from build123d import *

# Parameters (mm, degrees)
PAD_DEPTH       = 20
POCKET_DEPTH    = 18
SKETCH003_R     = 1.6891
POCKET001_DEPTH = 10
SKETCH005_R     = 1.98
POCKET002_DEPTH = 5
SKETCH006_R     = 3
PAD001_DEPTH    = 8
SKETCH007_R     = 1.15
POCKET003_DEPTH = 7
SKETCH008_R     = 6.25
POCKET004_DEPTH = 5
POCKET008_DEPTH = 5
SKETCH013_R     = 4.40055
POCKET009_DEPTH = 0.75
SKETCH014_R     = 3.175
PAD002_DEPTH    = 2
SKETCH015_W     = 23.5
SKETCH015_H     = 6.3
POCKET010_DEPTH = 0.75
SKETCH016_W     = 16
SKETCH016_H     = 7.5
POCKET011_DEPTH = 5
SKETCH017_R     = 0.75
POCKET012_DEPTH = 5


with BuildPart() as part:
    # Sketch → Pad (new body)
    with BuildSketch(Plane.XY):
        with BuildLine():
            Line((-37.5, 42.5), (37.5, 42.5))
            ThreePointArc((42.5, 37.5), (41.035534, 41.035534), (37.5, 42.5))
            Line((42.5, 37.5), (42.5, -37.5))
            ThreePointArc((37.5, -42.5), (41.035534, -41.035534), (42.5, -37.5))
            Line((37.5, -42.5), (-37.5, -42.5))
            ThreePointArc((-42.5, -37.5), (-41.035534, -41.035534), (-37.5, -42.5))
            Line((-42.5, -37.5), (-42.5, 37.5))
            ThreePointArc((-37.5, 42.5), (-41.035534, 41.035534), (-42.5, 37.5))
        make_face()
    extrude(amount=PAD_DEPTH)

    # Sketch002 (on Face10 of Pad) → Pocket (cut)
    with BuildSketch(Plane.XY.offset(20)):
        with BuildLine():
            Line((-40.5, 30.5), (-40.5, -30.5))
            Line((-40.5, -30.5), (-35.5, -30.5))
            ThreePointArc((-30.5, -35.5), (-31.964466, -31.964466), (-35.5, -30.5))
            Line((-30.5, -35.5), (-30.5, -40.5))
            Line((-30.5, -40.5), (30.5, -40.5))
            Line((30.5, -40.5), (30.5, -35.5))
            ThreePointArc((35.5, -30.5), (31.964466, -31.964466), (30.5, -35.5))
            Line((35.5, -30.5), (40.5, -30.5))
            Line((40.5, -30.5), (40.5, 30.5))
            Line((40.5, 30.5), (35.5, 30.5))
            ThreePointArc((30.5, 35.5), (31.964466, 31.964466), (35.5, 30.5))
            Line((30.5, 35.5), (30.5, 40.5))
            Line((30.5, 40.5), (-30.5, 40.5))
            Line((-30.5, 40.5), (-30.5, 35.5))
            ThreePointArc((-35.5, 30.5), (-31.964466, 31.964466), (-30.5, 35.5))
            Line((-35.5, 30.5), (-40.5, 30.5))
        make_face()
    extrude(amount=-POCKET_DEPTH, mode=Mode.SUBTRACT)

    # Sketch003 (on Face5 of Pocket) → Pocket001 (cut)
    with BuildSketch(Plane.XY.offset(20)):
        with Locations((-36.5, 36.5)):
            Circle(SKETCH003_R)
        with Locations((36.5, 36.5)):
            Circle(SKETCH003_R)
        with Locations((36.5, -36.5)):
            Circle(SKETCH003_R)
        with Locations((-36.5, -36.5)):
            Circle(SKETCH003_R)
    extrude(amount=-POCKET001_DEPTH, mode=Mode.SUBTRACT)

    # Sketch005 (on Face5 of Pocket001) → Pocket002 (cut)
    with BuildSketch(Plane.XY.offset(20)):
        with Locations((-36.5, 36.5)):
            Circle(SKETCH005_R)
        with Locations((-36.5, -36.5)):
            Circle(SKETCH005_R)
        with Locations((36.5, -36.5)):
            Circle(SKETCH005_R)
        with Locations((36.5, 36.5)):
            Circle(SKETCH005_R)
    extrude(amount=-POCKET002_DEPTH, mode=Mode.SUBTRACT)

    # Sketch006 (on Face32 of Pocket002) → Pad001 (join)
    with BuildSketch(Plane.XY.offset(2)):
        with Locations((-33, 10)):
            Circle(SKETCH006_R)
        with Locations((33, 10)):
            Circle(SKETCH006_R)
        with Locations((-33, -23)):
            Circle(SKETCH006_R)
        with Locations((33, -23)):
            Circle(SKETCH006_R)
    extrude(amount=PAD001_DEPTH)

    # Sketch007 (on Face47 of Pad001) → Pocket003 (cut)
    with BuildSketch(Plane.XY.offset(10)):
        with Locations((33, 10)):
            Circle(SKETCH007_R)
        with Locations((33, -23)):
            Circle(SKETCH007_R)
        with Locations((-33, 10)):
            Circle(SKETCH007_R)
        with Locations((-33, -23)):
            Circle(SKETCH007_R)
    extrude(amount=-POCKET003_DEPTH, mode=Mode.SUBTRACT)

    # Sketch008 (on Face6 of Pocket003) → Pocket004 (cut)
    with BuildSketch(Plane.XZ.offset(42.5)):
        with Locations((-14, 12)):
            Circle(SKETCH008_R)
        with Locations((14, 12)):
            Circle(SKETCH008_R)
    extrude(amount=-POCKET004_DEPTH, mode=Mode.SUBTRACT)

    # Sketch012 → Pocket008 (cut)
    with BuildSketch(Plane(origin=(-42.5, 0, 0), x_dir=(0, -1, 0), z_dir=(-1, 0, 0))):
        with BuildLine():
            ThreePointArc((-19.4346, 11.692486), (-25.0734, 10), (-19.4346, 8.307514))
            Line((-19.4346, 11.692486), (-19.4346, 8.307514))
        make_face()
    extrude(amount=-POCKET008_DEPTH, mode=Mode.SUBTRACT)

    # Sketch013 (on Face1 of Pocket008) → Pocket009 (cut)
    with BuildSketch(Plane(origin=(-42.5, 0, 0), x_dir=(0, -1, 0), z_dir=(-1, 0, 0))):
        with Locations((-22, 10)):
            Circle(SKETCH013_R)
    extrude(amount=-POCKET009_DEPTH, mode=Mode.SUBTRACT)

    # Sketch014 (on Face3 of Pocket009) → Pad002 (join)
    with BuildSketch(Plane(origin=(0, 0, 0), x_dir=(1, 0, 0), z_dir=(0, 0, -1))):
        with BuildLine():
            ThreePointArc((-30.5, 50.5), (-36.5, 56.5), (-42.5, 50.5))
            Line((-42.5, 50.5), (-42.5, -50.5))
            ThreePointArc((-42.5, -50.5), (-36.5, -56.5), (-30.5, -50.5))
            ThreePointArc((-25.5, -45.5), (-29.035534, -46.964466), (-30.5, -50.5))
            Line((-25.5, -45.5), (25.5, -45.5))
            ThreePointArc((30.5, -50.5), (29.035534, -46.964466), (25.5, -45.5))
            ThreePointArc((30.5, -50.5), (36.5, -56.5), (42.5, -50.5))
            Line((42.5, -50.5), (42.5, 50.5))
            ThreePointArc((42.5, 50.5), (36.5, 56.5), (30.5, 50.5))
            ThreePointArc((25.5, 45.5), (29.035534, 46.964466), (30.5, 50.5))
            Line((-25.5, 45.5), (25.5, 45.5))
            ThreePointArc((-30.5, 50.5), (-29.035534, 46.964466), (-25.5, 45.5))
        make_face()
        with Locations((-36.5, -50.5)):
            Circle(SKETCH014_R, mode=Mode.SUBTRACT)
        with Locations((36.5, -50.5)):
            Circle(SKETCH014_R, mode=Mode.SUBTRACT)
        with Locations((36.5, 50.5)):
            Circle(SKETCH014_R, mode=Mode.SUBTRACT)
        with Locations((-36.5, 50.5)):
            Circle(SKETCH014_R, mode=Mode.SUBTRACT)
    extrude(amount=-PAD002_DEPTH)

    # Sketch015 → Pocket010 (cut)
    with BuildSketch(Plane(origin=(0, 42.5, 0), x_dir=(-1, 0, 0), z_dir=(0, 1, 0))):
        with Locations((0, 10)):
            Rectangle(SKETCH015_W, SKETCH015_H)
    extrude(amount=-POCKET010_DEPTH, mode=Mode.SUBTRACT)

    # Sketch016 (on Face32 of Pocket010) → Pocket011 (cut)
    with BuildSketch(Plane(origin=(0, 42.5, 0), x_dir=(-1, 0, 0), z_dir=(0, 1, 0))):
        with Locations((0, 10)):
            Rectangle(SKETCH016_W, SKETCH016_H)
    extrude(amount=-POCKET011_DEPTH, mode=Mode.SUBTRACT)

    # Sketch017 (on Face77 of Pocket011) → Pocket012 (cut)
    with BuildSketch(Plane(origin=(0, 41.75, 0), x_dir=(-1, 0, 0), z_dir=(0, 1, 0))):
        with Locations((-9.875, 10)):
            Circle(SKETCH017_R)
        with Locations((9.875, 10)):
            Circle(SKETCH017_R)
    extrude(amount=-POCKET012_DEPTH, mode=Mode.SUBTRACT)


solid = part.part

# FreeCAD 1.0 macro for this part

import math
import FreeCAD as App
import Part
import Sketcher
from FreeCAD import Vector
Q = App.Units.Quantity


def add_polygon(sketch, points):
    """Adds a closed chain of lines whose ends are joined by coincident constraints."""
    first, n = sketch.GeometryCount, len(points)
    for a, b in zip(points, points[1:] + points[:1]):
        sketch.addGeometry(Part.LineSegment(App.Vector(*a, 0), App.Vector(*b, 0)), False)
    for i in range(n):
        sketch.addConstraint(Sketcher.Constraint("Coincident", first + i, 2, first + (i + 1) % n, 1))

doc = App.newDocument("Part")
body = doc.addObject("PartDesign::Body", "Body")

sketch1 = doc.addObject("Sketcher::SketchObject", "Sketch")
body.addObject(sketch1)
sketch1.AttachmentSupport = (doc.XY_Plane, [""])
sketch1.MapMode = "FlatFace"
sketch1.addGeometry(Part.LineSegment(Vector(37.5, 42.5, 0), Vector(-37.5, 42.5, 0)), False)
sketch1.addGeometry(Part.ArcOfCircle(Part.Circle(Vector(-37.5, 37.5, 0), Vector(0, 0, 1), 5), math.radians(90), math.radians(180)), False)
sketch1.addGeometry(Part.LineSegment(Vector(-42.5, 37.5, 0), Vector(-42.5, -37.5, 0)), False)
sketch1.addGeometry(Part.ArcOfCircle(Part.Circle(Vector(-37.5, -37.5, 0), Vector(0, 0, 1), 5), math.radians(180), math.radians(270)), False)
sketch1.addGeometry(Part.LineSegment(Vector(-37.5, -42.5, 0), Vector(37.5, -42.5, 0)), False)
sketch1.addGeometry(Part.ArcOfCircle(Part.Circle(Vector(37.5, -37.5, 0), Vector(0, 0, 1), 5), math.radians(-90), math.radians(0)), False)
sketch1.addGeometry(Part.LineSegment(Vector(42.5, -37.5, 0), Vector(42.5, 37.5, 0)), False)
sketch1.addGeometry(Part.ArcOfCircle(Part.Circle(Vector(37.5, 37.5, 0), Vector(0, 0, 1), 5), math.radians(0), math.radians(90)), False)
sketch1.addConstraint(Sketcher.Constraint("Tangent", 0, 2, 1, 1))
sketch1.addConstraint(Sketcher.Constraint("Tangent", 1, 2, 2, 1))
sketch1.addConstraint(Sketcher.Constraint("Tangent", 2, 2, 3, 1))
sketch1.addConstraint(Sketcher.Constraint("Tangent", 3, 2, 4, 1))
sketch1.addConstraint(Sketcher.Constraint("Tangent", 4, 2, 5, 1))
sketch1.addConstraint(Sketcher.Constraint("Tangent", 5, 2, 6, 1))
sketch1.addConstraint(Sketcher.Constraint("Tangent", 6, 2, 7, 1))
sketch1.addConstraint(Sketcher.Constraint("Tangent", 7, 2, 0, 1))
sketch1.addConstraint(Sketcher.Constraint("Horizontal", 0))
sketch1.addConstraint(Sketcher.Constraint("Vertical", 2))
sketch1.addConstraint(Sketcher.Constraint("Horizontal", 4))
sketch1.addConstraint(Sketcher.Constraint("Vertical", 6))
sketch1.addConstraint(Sketcher.Constraint("Equal", 1, 3))
sketch1.addConstraint(Sketcher.Constraint("Equal", 3, 5))
sketch1.addConstraint(Sketcher.Constraint("Equal", 5, 7))
sketch1.addConstraint(Sketcher.Constraint("Symmetric", 1, 3, 5, 3, -1, 1))
sketch1.addConstraint(Sketcher.Constraint("Equal", 4, 2))
sketch1.addConstraint(Sketcher.Constraint("Radius", 1, Q("5 mm")))
sketch1.addConstraint(Sketcher.Constraint("DistanceX", 0, 2, 0, 1, Q("75 mm")))
pad1 = doc.addObject("PartDesign::Pad", "Pad")
body.addObject(pad1)
pad1.Profile = sketch1
pad1.Length = 20

sketch2 = doc.addObject("Sketcher::SketchObject", "Sketch001")
body.addObject(sketch2)
sketch2.AttachmentSupport = (doc.XY_Plane, [""])
sketch2.MapMode = "FlatFace"
sketch2.AttachmentOffset = App.Placement(Vector(0, 0, 20), App.Rotation())
sketch2.addGeometry(Part.LineSegment(Vector(-40.5, 30.5, 0), Vector(-40.5, -30.5, 0)), False)
sketch2.addGeometry(Part.LineSegment(Vector(-40.5, -30.5, 0), Vector(-35.5, -30.5, 0)), False)
sketch2.addGeometry(Part.ArcOfCircle(Part.Circle(Vector(-35.5, -35.5, 0), Vector(0, 0, 1), 5), math.radians(0), math.radians(90)), False)
sketch2.addGeometry(Part.LineSegment(Vector(-30.5, -35.5, 0), Vector(-30.5, -40.5, 0)), False)
sketch2.addGeometry(Part.LineSegment(Vector(-30.5, -40.5, 0), Vector(30.5, -40.5, 0)), False)
sketch2.addGeometry(Part.LineSegment(Vector(30.5, -40.5, 0), Vector(30.5, -35.5, 0)), False)
sketch2.addGeometry(Part.ArcOfCircle(Part.Circle(Vector(35.5, -35.5, 0), Vector(0, 0, 1), 5), math.radians(90), math.radians(180)), False)
sketch2.addGeometry(Part.LineSegment(Vector(35.5, -30.5, 0), Vector(40.5, -30.5, 0)), False)
sketch2.addGeometry(Part.LineSegment(Vector(40.5, -30.5, 0), Vector(40.5, 30.5, 0)), False)
sketch2.addGeometry(Part.LineSegment(Vector(40.5, 30.5, 0), Vector(35.5, 30.5, 0)), False)
sketch2.addGeometry(Part.ArcOfCircle(Part.Circle(Vector(35.5, 35.5, 0), Vector(0, 0, 1), 5), math.radians(180), math.radians(270)), False)
sketch2.addGeometry(Part.LineSegment(Vector(30.5, 35.5, 0), Vector(30.5, 40.5, 0)), False)
sketch2.addGeometry(Part.LineSegment(Vector(30.5, 40.5, 0), Vector(-30.5, 40.5, 0)), False)
sketch2.addGeometry(Part.LineSegment(Vector(-30.5, 40.5, 0), Vector(-30.5, 35.5, 0)), False)
sketch2.addGeometry(Part.ArcOfCircle(Part.Circle(Vector(-35.5, 35.5, 0), Vector(0, 0, 1), 5), math.radians(-90), math.radians(0)), False)
sketch2.addGeometry(Part.LineSegment(Vector(-35.5, 30.5, 0), Vector(-40.5, 30.5, 0)), False)
sketch2.addConstraint(Sketcher.Constraint("Coincident", 0, 2, 1, 1))
sketch2.addConstraint(Sketcher.Constraint("Tangent", 1, 2, 2, 2))
sketch2.addConstraint(Sketcher.Constraint("Tangent", 2, 1, 3, 1))
sketch2.addConstraint(Sketcher.Constraint("Coincident", 3, 2, 4, 1))
sketch2.addConstraint(Sketcher.Constraint("Coincident", 4, 2, 5, 1))
sketch2.addConstraint(Sketcher.Constraint("Tangent", 5, 2, 6, 2))
sketch2.addConstraint(Sketcher.Constraint("Tangent", 6, 1, 7, 1))
sketch2.addConstraint(Sketcher.Constraint("Coincident", 7, 2, 8, 1))
sketch2.addConstraint(Sketcher.Constraint("Coincident", 8, 2, 9, 1))
sketch2.addConstraint(Sketcher.Constraint("Tangent", 9, 2, 10, 2))
sketch2.addConstraint(Sketcher.Constraint("Tangent", 10, 1, 11, 1))
sketch2.addConstraint(Sketcher.Constraint("Coincident", 11, 2, 12, 1))
sketch2.addConstraint(Sketcher.Constraint("Coincident", 12, 2, 13, 1))
sketch2.addConstraint(Sketcher.Constraint("Tangent", 13, 2, 14, 2))
sketch2.addConstraint(Sketcher.Constraint("Tangent", 14, 1, 15, 1))
sketch2.addConstraint(Sketcher.Constraint("Coincident", 15, 2, 0, 1))
sketch2.addConstraint(Sketcher.Constraint("Vertical", 0))
sketch2.addConstraint(Sketcher.Constraint("Horizontal", 1))
sketch2.addConstraint(Sketcher.Constraint("Vertical", 3))
sketch2.addConstraint(Sketcher.Constraint("Horizontal", 4))
sketch2.addConstraint(Sketcher.Constraint("Vertical", 5))
sketch2.addConstraint(Sketcher.Constraint("Horizontal", 7))
sketch2.addConstraint(Sketcher.Constraint("Vertical", 8))
sketch2.addConstraint(Sketcher.Constraint("Horizontal", 9))
sketch2.addConstraint(Sketcher.Constraint("Vertical", 11))
sketch2.addConstraint(Sketcher.Constraint("Horizontal", 12))
sketch2.addConstraint(Sketcher.Constraint("Vertical", 13))
sketch2.addConstraint(Sketcher.Constraint("Horizontal", 15))
sketch2.addConstraint(Sketcher.Constraint("Equal", 2, 6))
sketch2.addConstraint(Sketcher.Constraint("Equal", 6, 10))
sketch2.addConstraint(Sketcher.Constraint("Equal", 10, 14))
sketch2.addConstraint(Sketcher.Constraint("Symmetric", 2, 3, 10, 3, -1, 1))
sketch2.addConstraint(Sketcher.Constraint("Symmetric", 6, 3, 14, 3, -1, 1))
sketch2.addConstraint(Sketcher.Constraint("Symmetric", 2, 3, 6, 3, -2))
sketch2.addConstraint(Sketcher.Constraint("Equal", 1, 7))
sketch2.addConstraint(Sketcher.Constraint("Equal", 12, 0))
sketch2.addConstraint(Sketcher.Constraint("Equal", 15, 3))
sketch2.addConstraint(Sketcher.Constraint("Equal", 5, 11))
sketch2.addConstraint(Sketcher.Constraint("Radius", 2, Q("5 mm")))
sketch2.addConstraint(Sketcher.Constraint("DistanceX", 1, 1, 1, 2, Q("5 mm")))
sketch2.addConstraint(Sketcher.Constraint("DistanceX", 4, 1, 4, 2, Q("61 mm")))
pocket1 = doc.addObject("PartDesign::Pocket", "Pocket")
body.addObject(pocket1)
pocket1.Profile = sketch2
pocket1.Length = 18

sketch3 = doc.addObject("Sketcher::SketchObject", "Sketch002")
body.addObject(sketch3)
sketch3.AttachmentSupport = (doc.XY_Plane, [""])
sketch3.MapMode = "FlatFace"
sketch3.AttachmentOffset = App.Placement(Vector(0, 0, 20), App.Rotation())
sketch3.addGeometry(Part.Circle(Vector(-36.5, 36.5, 0), Vector(0, 0, 1), 1.7), False)
sketch3.addGeometry(Part.Circle(Vector(36.5, 36.5, 0), Vector(0, 0, 1), 1.7), False)
sketch3.addGeometry(Part.Circle(Vector(36.5, -36.5, 0), Vector(0, 0, 1), 1.7), False)
sketch3.addGeometry(Part.Circle(Vector(-36.5, -36.5, 0), Vector(0, 0, 1), 1.7), False)
sketch3.addConstraint(Sketcher.Constraint("Equal", 0, 1))
sketch3.addConstraint(Sketcher.Constraint("Equal", 1, 2))
sketch3.addConstraint(Sketcher.Constraint("Equal", 2, 3))
sketch3.addConstraint(Sketcher.Constraint("Symmetric", 0, 3, 2, 3, -1, 1))
sketch3.addConstraint(Sketcher.Constraint("Symmetric", 1, 3, 3, 3, -1, 1))
sketch3.addConstraint(Sketcher.Constraint("Symmetric", 0, 3, 1, 3, -2))
sketch3.addConstraint(Sketcher.Constraint("DistanceX", 0, 3, 1, 3, Q("73 mm")))
sketch3.addConstraint(Sketcher.Constraint("DistanceY", 2, 3, 1, 3, Q("73 mm")))
sketch3.addConstraint(Sketcher.Constraint("Diameter", 0, Q("3.3782 mm")))
pocket2 = doc.addObject("PartDesign::Pocket", "Pocket001")
body.addObject(pocket2)
pocket2.Profile = sketch3
pocket2.Length = 10

sketch4 = doc.addObject("Sketcher::SketchObject", "Sketch003")
body.addObject(sketch4)
sketch4.AttachmentSupport = (doc.XY_Plane, [""])
sketch4.MapMode = "FlatFace"
sketch4.AttachmentOffset = App.Placement(Vector(0, 0, 20), App.Rotation())
sketch4.addGeometry(Part.Circle(Vector(-36.5, 36.5, 0), Vector(0, 0, 1), 2), False)
sketch4.addGeometry(Part.Circle(Vector(-36.5, -36.5, 0), Vector(0, 0, 1), 2), False)
sketch4.addGeometry(Part.Circle(Vector(36.5, -36.5, 0), Vector(0, 0, 1), 2), False)
sketch4.addGeometry(Part.Circle(Vector(36.5, 36.5, 0), Vector(0, 0, 1), 2), False)
sketch4.addConstraint(Sketcher.Constraint("Equal", 0, 1))
sketch4.addConstraint(Sketcher.Constraint("Equal", 1, 2))
sketch4.addConstraint(Sketcher.Constraint("Equal", 2, 3))
sketch4.addConstraint(Sketcher.Constraint("Symmetric", 0, 3, 2, 3, -1, 1))
sketch4.addConstraint(Sketcher.Constraint("Symmetric", 1, 3, 3, 3, -1, 1))
sketch4.addConstraint(Sketcher.Constraint("Symmetric", 1, 3, 2, 3, -2))
sketch4.addConstraint(Sketcher.Constraint("Diameter", 0, Q("3.96 mm")))
sketch4.addConstraint(Sketcher.Constraint("DistanceY", 1, 3, 0, 3, Q("73 mm")))
sketch4.addConstraint(Sketcher.Constraint("DistanceX", 1, 3, 2, 3, Q("73 mm")))
pocket3 = doc.addObject("PartDesign::Pocket", "Pocket002")
body.addObject(pocket3)
pocket3.Profile = sketch4
pocket3.Length = 5

sketch5 = doc.addObject("Sketcher::SketchObject", "Sketch004")
body.addObject(sketch5)
sketch5.AttachmentSupport = (doc.XY_Plane, [""])
sketch5.MapMode = "FlatFace"
sketch5.AttachmentOffset = App.Placement(Vector(0, 0, 2), App.Rotation())
sketch5.addGeometry(Part.Circle(Vector(-33, 10, 0), Vector(0, 0, 1), 3), False)
sketch5.addGeometry(Part.Circle(Vector(33, 10, 0), Vector(0, 0, 1), 3), False)
sketch5.addGeometry(Part.Circle(Vector(-33, -23, 0), Vector(0, 0, 1), 3), False)
sketch5.addGeometry(Part.Circle(Vector(33, -23, 0), Vector(0, 0, 1), 3), False)
sketch5.addConstraint(Sketcher.Constraint("Equal", 0, 1))
sketch5.addConstraint(Sketcher.Constraint("Equal", 1, 2))
sketch5.addConstraint(Sketcher.Constraint("Equal", 2, 3))
sketch5.addConstraint(Sketcher.Constraint("Symmetric", 0, 3, 1, 3, -2))
sketch5.addConstraint(Sketcher.Constraint("Symmetric", 2, 3, 3, 3, -2))
sketch5.addConstraint(Sketcher.Constraint("Vertical", 0, 3, 2, 3))
sketch5.addConstraint(Sketcher.Constraint("Diameter", 0, Q("6 mm")))
sketch5.addConstraint(Sketcher.Constraint("DistanceX", 0, 3, -1, 1, Q("33 mm")))
sketch5.addConstraint(Sketcher.Constraint("DistanceY", -1, 1, 0, 3, Q("10 mm")))
sketch5.addConstraint(Sketcher.Constraint("DistanceY", 2, 3, -1, 1, Q("23 mm")))
pad2 = doc.addObject("PartDesign::Pad", "Pad001")
body.addObject(pad2)
pad2.Profile = sketch5
pad2.Length = 8

sketch6 = doc.addObject("Sketcher::SketchObject", "Sketch005")
body.addObject(sketch6)
sketch6.AttachmentSupport = (doc.XY_Plane, [""])
sketch6.MapMode = "FlatFace"
sketch6.AttachmentOffset = App.Placement(Vector(0, 0, 10), App.Rotation())
sketch6.addGeometry(Part.Circle(Vector(33, 10, 0), Vector(0, 0, 1), 1.1), False)
sketch6.addGeometry(Part.Circle(Vector(33, -23, 0), Vector(0, 0, 1), 1.1), False)
sketch6.addGeometry(Part.Circle(Vector(-33, 10, 0), Vector(0, 0, 1), 1.1), False)
sketch6.addGeometry(Part.Circle(Vector(-33, -23, 0), Vector(0, 0, 1), 1.1), False)
sketch6.addConstraint(Sketcher.Constraint("Equal", 0, 1))
sketch6.addConstraint(Sketcher.Constraint("Equal", 1, 2))
sketch6.addConstraint(Sketcher.Constraint("Equal", 2, 3))
sketch6.addConstraint(Sketcher.Constraint("Symmetric", 0, 3, 2, 3, -2))
sketch6.addConstraint(Sketcher.Constraint("Symmetric", 1, 3, 3, 3, -2))
sketch6.addConstraint(Sketcher.Constraint("Vertical", 0, 3, 1, 3))
sketch6.addConstraint(Sketcher.Constraint("Diameter", 0, Q("2.3 mm")))
sketch6.addConstraint(Sketcher.Constraint("DistanceX", -1, 1, 0, 3, Q("33 mm")))
sketch6.addConstraint(Sketcher.Constraint("DistanceY", -1, 1, 0, 3, Q("10 mm")))
sketch6.addConstraint(Sketcher.Constraint("DistanceY", 1, 3, -1, 1, Q("23 mm")))
pocket4 = doc.addObject("PartDesign::Pocket", "Pocket003")
body.addObject(pocket4)
pocket4.Profile = sketch6
pocket4.Length = 7

sketch7 = doc.addObject("Sketcher::SketchObject", "Sketch006")
body.addObject(sketch7)
sketch7.AttachmentSupport = (doc.XZ_Plane, [""])
sketch7.MapMode = "FlatFace"
sketch7.AttachmentOffset = App.Placement(Vector(0, 0, 42.5), App.Rotation())
sketch7.addGeometry(Part.Circle(Vector(-14, 12, 0), Vector(0, 0, 1), 6), False)
sketch7.addGeometry(Part.Circle(Vector(14, 12, 0), Vector(0, 0, 1), 6), False)
sketch7.addConstraint(Sketcher.Constraint("Equal", 0, 1))
sketch7.addConstraint(Sketcher.Constraint("Symmetric", 0, 3, 1, 3, -2))
sketch7.addConstraint(Sketcher.Constraint("Diameter", 0, Q("12.5 mm")))
sketch7.addConstraint(Sketcher.Constraint("DistanceX", 0, 3, -1, 1, Q("14 mm")))
sketch7.addConstraint(Sketcher.Constraint("DistanceY", -1, 1, 0, 3, Q("12 mm")))
pocket5 = doc.addObject("PartDesign::Pocket", "Pocket004")
body.addObject(pocket5)
pocket5.Profile = sketch7
pocket5.Length = 5

sketch8 = doc.addObject("Sketcher::SketchObject", "Sketch007")
body.addObject(sketch8)
sketch8.AttachmentSupport = (doc.YZ_Plane, [""])
sketch8.MapMode = "FlatFace"
sketch8.AttachmentOffset = App.Placement(Vector(0, 0, -42.5), App.Rotation())
sketch8.addGeometry(Part.ArcOfCircle(Part.Circle(Vector(22, 10, 0), Vector(0, 0, 1), 3.1), math.radians(-147), math.radians(147)), False)
sketch8.addGeometry(Part.LineSegment(Vector(19.4, 8.3, 0), Vector(19.4, 11.7, 0)), False)
sketch8.addConstraint(Sketcher.Constraint("Coincident", 0, 1, 1, 1))
sketch8.addConstraint(Sketcher.Constraint("Coincident", 1, 2, 0, 2))
sketch8.addConstraint(Sketcher.Constraint("Vertical", 1))
sketch8.addConstraint(Sketcher.Constraint("DistanceX", -1, 1, 0, 3, Q("22 mm")))
sketch8.addConstraint(Sketcher.Constraint("DistanceY", -1, 1, 0, 3, Q("10 mm")))
sketch8.addConstraint(Sketcher.Constraint("Radius", 0, Q("3.0734 mm")))
sketch8.addConstraint(Sketcher.Constraint("DistanceX", -1, 1, 0, 1, Q("19.4346 mm")))
pocket6 = doc.addObject("PartDesign::Pocket", "Pocket005")
body.addObject(pocket6)
pocket6.Profile = sketch8
pocket6.Length = 5
pocket6.Reversed = True

sketch9 = doc.addObject("Sketcher::SketchObject", "Sketch008")
body.addObject(sketch9)
sketch9.AttachmentSupport = (doc.YZ_Plane, [""])
sketch9.MapMode = "FlatFace"
sketch9.AttachmentOffset = App.Placement(Vector(0, 0, -42.5), App.Rotation())
sketch9.addGeometry(Part.Circle(Vector(22, 10, 0), Vector(0, 0, 1), 4.4), False)
sketch9.addConstraint(Sketcher.Constraint("DistanceX", -1, 1, 0, 3, Q("22 mm")))
sketch9.addConstraint(Sketcher.Constraint("DistanceY", -1, 1, 0, 3, Q("10 mm")))
sketch9.addConstraint(Sketcher.Constraint("Diameter", 0, Q("8.8011 mm")))
pocket7 = doc.addObject("PartDesign::Pocket", "Pocket006")
body.addObject(pocket7)
pocket7.Profile = sketch9
pocket7.Length = 0.75
pocket7.Reversed = True

sketch10 = doc.addObject("Sketcher::SketchObject", "Sketch009")
body.addObject(sketch10)
sketch10.AttachmentSupport = (doc.XY_Plane, [""])
sketch10.MapMode = "FlatFace"
sketch10.addGeometry(Part.ArcOfCircle(Part.Circle(Vector(-36.5, -50.5, 0), Vector(0, 0, 1), 6), math.radians(180), math.radians(360)), False)
sketch10.addGeometry(Part.LineSegment(Vector(-42.5, -50.5, 0), Vector(-42.5, 50.5, 0)), False)
sketch10.addGeometry(Part.ArcOfCircle(Part.Circle(Vector(-36.5, 50.5, 0), Vector(0, 0, 1), 6), math.radians(0), math.radians(180)), False)
sketch10.addGeometry(Part.ArcOfCircle(Part.Circle(Vector(-25.5, 50.5, 0), Vector(0, 0, 1), 5), math.radians(180), math.radians(270)), False)
sketch10.addGeometry(Part.LineSegment(Vector(-25.5, 45.5, 0), Vector(25.5, 45.5, 0)), False)
sketch10.addGeometry(Part.ArcOfCircle(Part.Circle(Vector(25.5, 50.5, 0), Vector(0, 0, 1), 5), math.radians(-90), math.radians(0)), False)
sketch10.addGeometry(Part.ArcOfCircle(Part.Circle(Vector(36.5, 50.5, 0), Vector(0, 0, 1), 6), math.radians(0), math.radians(180)), False)
sketch10.addGeometry(Part.LineSegment(Vector(42.5, 50.5, 0), Vector(42.5, -50.5, 0)), False)
sketch10.addGeometry(Part.ArcOfCircle(Part.Circle(Vector(36.5, -50.5, 0), Vector(0, 0, 1), 6), math.radians(180), math.radians(360)), False)
sketch10.addGeometry(Part.ArcOfCircle(Part.Circle(Vector(25.5, -50.5, 0), Vector(0, 0, 1), 5), math.radians(0), math.radians(90)), False)
sketch10.addGeometry(Part.LineSegment(Vector(25.5, -45.5, 0), Vector(-25.5, -45.5, 0)), False)
sketch10.addGeometry(Part.ArcOfCircle(Part.Circle(Vector(-25.5, -50.5, 0), Vector(0, 0, 1), 5), math.radians(90), math.radians(180)), False)
sketch10.addGeometry(Part.Circle(Vector(-36.5, 50.5, 0), Vector(0, 0, 1), 3.2), False)
sketch10.addGeometry(Part.Circle(Vector(36.5, 50.5, 0), Vector(0, 0, 1), 3.2), False)
sketch10.addGeometry(Part.Circle(Vector(-36.5, -50.5, 0), Vector(0, 0, 1), 3.2), False)
sketch10.addGeometry(Part.Circle(Vector(36.5, -50.5, 0), Vector(0, 0, 1), 3.2), False)
sketch10.addConstraint(Sketcher.Constraint("Tangent", 0, 1, 1, 1))
sketch10.addConstraint(Sketcher.Constraint("Tangent", 1, 2, 2, 2))
sketch10.addConstraint(Sketcher.Constraint("Tangent", 2, 1, 3, 1))
sketch10.addConstraint(Sketcher.Constraint("Tangent", 3, 2, 4, 1))
sketch10.addConstraint(Sketcher.Constraint("Tangent", 4, 2, 5, 1))
sketch10.addConstraint(Sketcher.Constraint("Tangent", 5, 2, 6, 2))
sketch10.addConstraint(Sketcher.Constraint("Tangent", 6, 1, 7, 1))
sketch10.addConstraint(Sketcher.Constraint("Tangent", 7, 2, 8, 2))
sketch10.addConstraint(Sketcher.Constraint("Tangent", 8, 1, 9, 1))
sketch10.addConstraint(Sketcher.Constraint("Tangent", 9, 2, 10, 1))
sketch10.addConstraint(Sketcher.Constraint("Tangent", 10, 2, 11, 1))
sketch10.addConstraint(Sketcher.Constraint("Tangent", 11, 2, 0, 2))
sketch10.addConstraint(Sketcher.Constraint("Vertical", 1))
sketch10.addConstraint(Sketcher.Constraint("Horizontal", 4))
sketch10.addConstraint(Sketcher.Constraint("Vertical", 7))
sketch10.addConstraint(Sketcher.Constraint("Horizontal", 10))
sketch10.addConstraint(Sketcher.Constraint("Coincident", 12, 3, 2, 3))
sketch10.addConstraint(Sketcher.Constraint("Coincident", 13, 3, 6, 3))
sketch10.addConstraint(Sketcher.Constraint("Coincident", 14, 3, 0, 3))
sketch10.addConstraint(Sketcher.Constraint("Coincident", 15, 3, 8, 3))
sketch10.addConstraint(Sketcher.Constraint("Equal", 0, 2))
sketch10.addConstraint(Sketcher.Constraint("Equal", 3, 5))
sketch10.addConstraint(Sketcher.Constraint("Equal", 2, 6))
sketch10.addConstraint(Sketcher.Constraint("Equal", 6, 8))
sketch10.addConstraint(Sketcher.Constraint("Equal", 5, 9))
sketch10.addConstraint(Sketcher.Constraint("Equal", 9, 11))
sketch10.addConstraint(Sketcher.Constraint("Equal", 12, 13))
sketch10.addConstraint(Sketcher.Constraint("Equal", 13, 14))
sketch10.addConstraint(Sketcher.Constraint("Equal", 14, 15))
sketch10.addConstraint(Sketcher.Constraint("Symmetric", 0, 3, 6, 3, -1, 1))
sketch10.addConstraint(Sketcher.Constraint("Horizontal", 2, 3, 3, 3))
sketch10.addConstraint(Sketcher.Constraint("Horizontal", 5, 3, 6, 3))
sketch10.addConstraint(Sketcher.Constraint("Horizontal", 0, 3, 8, 3))
sketch10.addConstraint(Sketcher.Constraint("Horizontal", 8, 3, 9, 3))
sketch10.addConstraint(Sketcher.Constraint("Radius", 0, Q("6 mm")))
sketch10.addConstraint(Sketcher.Constraint("Radius", 3, Q("5 mm")))
sketch10.addConstraint(Sketcher.Constraint("Diameter", 12, Q("6.35 mm")))
sketch10.addConstraint(Sketcher.Constraint("DistanceX", 4, 1, 4, 2, Q("51 mm")))
sketch10.addConstraint(Sketcher.Constraint("DistanceY", 1, 1, 1, 2, Q("101 mm")))
pad3 = doc.addObject("PartDesign::Pad", "Pad002")
body.addObject(pad3)
pad3.Profile = sketch10
pad3.Length = 2

sketch11 = doc.addObject("Sketcher::SketchObject", "Sketch010")
body.addObject(sketch11)
sketch11.AttachmentSupport = (doc.XZ_Plane, [""])
sketch11.MapMode = "FlatFace"
sketch11.AttachmentOffset = App.Placement(Vector(0, 0, -42.5), App.Rotation())
add_polygon(sketch11, [(12, 13), (12, 7), (-12, 7), (-12, 13)])
sketch11.addConstraint(Sketcher.Constraint("Vertical", 0))
sketch11.addConstraint(Sketcher.Constraint("Horizontal", 1))
sketch11.addConstraint(Sketcher.Constraint("Vertical", 2))
sketch11.addConstraint(Sketcher.Constraint("Horizontal", 3))
sketch11.addConstraint(Sketcher.Constraint("DistanceX", 1, 2, 1, 1, Q("23.5 mm")))
sketch11.addConstraint(Sketcher.Constraint("DistanceY", 0, 2, 0, 1, Q("6.3 mm")))
sketch11.addConstraint(Sketcher.Constraint("DistanceX", -1, 1, 0, 2, Q("11.75 mm")))
sketch11.addConstraint(Sketcher.Constraint("DistanceY", -1, 1, 0, 2, Q("6.85 mm")))
pocket8 = doc.addObject("PartDesign::Pocket", "Pocket007")
body.addObject(pocket8)
pocket8.Profile = sketch11
pocket8.Length = 0.75
pocket8.Reversed = True

sketch12 = doc.addObject("Sketcher::SketchObject", "Sketch011")
body.addObject(sketch12)
sketch12.AttachmentSupport = (doc.XZ_Plane, [""])
sketch12.MapMode = "FlatFace"
sketch12.AttachmentOffset = App.Placement(Vector(0, 0, -42.5), App.Rotation())
add_polygon(sketch12, [(8, 14), (8, 6), (-8, 6), (-8, 14)])
sketch12.addConstraint(Sketcher.Constraint("Vertical", 0))
sketch12.addConstraint(Sketcher.Constraint("Horizontal", 1))
sketch12.addConstraint(Sketcher.Constraint("Vertical", 2))
sketch12.addConstraint(Sketcher.Constraint("Horizontal", 3))
sketch12.addConstraint(Sketcher.Constraint("DistanceX", 1, 2, 1, 1, Q("16 mm")))
sketch12.addConstraint(Sketcher.Constraint("DistanceY", 0, 2, 0, 1, Q("7.5 mm")))
sketch12.addConstraint(Sketcher.Constraint("DistanceX", -1, 1, 0, 2, Q("8 mm")))
sketch12.addConstraint(Sketcher.Constraint("DistanceY", -1, 1, 0, 2, Q("6.25 mm")))
pocket9 = doc.addObject("PartDesign::Pocket", "Pocket008")
body.addObject(pocket9)
pocket9.Profile = sketch12
pocket9.Length = 5
pocket9.Reversed = True

sketch13 = doc.addObject("Sketcher::SketchObject", "Sketch012")
body.addObject(sketch13)
sketch13.AttachmentSupport = (doc.XZ_Plane, [""])
sketch13.MapMode = "FlatFace"
sketch13.AttachmentOffset = App.Placement(Vector(0, 0, -41.75), App.Rotation())
sketch13.addGeometry(Part.Circle(Vector(9.9, 10, 0), Vector(0, 0, 1), 0.8), False)
sketch13.addGeometry(Part.Circle(Vector(-9.9, 10, 0), Vector(0, 0, 1), 0.8), False)
sketch13.addConstraint(Sketcher.Constraint("Equal", 0, 1))
sketch13.addConstraint(Sketcher.Constraint("Symmetric", 0, 3, 1, 3, -2))
sketch13.addConstraint(Sketcher.Constraint("Diameter", 0, Q("1.5 mm")))
sketch13.addConstraint(Sketcher.Constraint("DistanceY", -1, 1, 0, 3, Q("10 mm")))
sketch13.addConstraint(Sketcher.Constraint("DistanceX", 1, 3, 0, 3, Q("19.75 mm")))
pocket10 = doc.addObject("PartDesign::Pocket", "Pocket009")
body.addObject(pocket10)
pocket10.Profile = sketch13
pocket10.Length = 5
pocket10.Reversed = True

doc.recompute()
